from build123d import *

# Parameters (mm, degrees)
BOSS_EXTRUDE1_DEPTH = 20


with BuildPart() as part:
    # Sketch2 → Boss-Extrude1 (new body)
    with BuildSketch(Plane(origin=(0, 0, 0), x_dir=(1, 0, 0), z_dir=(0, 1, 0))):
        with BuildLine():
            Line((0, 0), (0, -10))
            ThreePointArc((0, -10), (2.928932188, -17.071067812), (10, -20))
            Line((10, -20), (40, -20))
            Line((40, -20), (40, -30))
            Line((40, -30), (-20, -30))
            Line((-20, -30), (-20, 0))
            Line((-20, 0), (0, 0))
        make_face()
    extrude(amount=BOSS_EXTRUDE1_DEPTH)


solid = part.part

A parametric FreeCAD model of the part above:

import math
import FreeCAD as App
import Part
import Sketcher
from FreeCAD import Vector

doc = App.newDocument("Part")
body = doc.addObject("PartDesign::Body", "Body")

sketch1 = doc.addObject("Sketcher::SketchObject", "Sketch")
body.addObject(sketch1)
sketch1.AttachmentSupport = (doc.XZ_Plane, [""])
sketch1.MapMode = "FlatFace"
sketch1.addGeometry(Part.LineSegment(Vector(0, 10, 0), Vector(0, 0, 0)), False)
sketch1.addGeometry(Part.LineSegment(Vector(0, 0, 0), Vector(-20, 0, 0)), False)
sketch1.addGeometry(Part.LineSegment(Vector(-20, 0, 0), Vector(-20, 30, 0)), False)
sketch1.addGeometry(Part.LineSegment(Vector(-20, 30, 0), Vector(40, 30, 0)), False)
sketch1.addGeometry(Part.LineSegment(Vector(40, 30, 0), Vector(40, 20, 0)), False)
sketch1.addGeometry(Part.LineSegment(Vector(40, 20, 0), Vector(10, 20, 0)), False)
sketch1.addGeometry(Part.ArcOfCircle(Part.Circle(Vector(10, 10, 0), Vector(0, 0, 1), 10), math.radians(90), math.radians(180)), False)
sketch1.addConstraint(Sketcher.Constraint("Coincident", 0, 2, 1, 1))
sketch1.addConstraint(Sketcher.Constraint("Coincident", 1, 2, 2, 1))
sketch1.addConstraint(Sketcher.Constraint("Coincident", 2, 2, 3, 1))
sketch1.addConstraint(Sketcher.Constraint("Coincident", 3, 2, 4, 1))
sketch1.addConstraint(Sketcher.Constraint("Coincident", 4, 2, 5, 1))
sketch1.addConstraint(Sketcher.Constraint("Tangent", 5, 2, 6, 1))
sketch1.addConstraint(Sketcher.Constraint("Tangent", 6, 2, 0, 1))
sketch1.addConstraint(Sketcher.Constraint("Vertical", 0))
sketch1.addConstraint(Sketcher.Constraint("Horizontal", 1))
sketch1.addConstraint(Sketcher.Constraint("Vertical", 2))
sketch1.addConstraint(Sketcher.Constraint("Horizontal", 3))
sketch1.addConstraint(Sketcher.Constraint("Vertical", 4))
sketch1.addConstraint(Sketcher.Constraint("Horizontal", 5))
sketch1.addConstraint(Sketcher.Constraint("Coincident", 0, 2, -1, 1))
sketch1.addConstraint(Sketcher.Constraint("Equal", 5, 2))
sketch1.addConstraint(Sketcher.Constraint("Equal", 0, 4))
sketch1.addConstraint(Sketcher.Constraint("Radius", 6, 10.0))
sketch1.addConstraint(Sketcher.Constraint("DistanceX", 1, 2, 1, 1, 20.0))
sketch1.addConstraint(Sketcher.Constraint("DistanceX", 3, 1, 3, 2, 60.0))
pad1 = doc.addObject("PartDesign::Pad", "Pad")
body.addObject(pad1)
pad1.Profile = sketch1
pad1.Length = 20
pad1.Reversed = True

doc.recompute()
